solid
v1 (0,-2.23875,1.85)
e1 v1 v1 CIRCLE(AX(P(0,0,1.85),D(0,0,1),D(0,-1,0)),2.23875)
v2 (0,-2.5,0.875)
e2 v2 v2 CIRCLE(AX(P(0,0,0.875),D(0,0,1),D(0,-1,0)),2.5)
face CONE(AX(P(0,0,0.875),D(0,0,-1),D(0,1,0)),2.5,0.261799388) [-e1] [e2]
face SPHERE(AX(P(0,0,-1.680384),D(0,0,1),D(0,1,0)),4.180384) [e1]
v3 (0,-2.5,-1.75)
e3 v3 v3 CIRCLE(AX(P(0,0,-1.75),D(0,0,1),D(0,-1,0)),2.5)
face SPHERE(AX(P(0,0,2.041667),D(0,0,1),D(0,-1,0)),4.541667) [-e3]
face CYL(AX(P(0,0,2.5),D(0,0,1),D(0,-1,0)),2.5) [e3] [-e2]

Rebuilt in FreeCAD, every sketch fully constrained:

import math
import FreeCAD as App
import Part
import Sketcher
from FreeCAD import Vector
Q = App.Units.Quantity

doc = App.newDocument("Part")
params = doc.addObject("Spreadsheet::Sheet", "Params")
for row, (alias, value) in enumerate([
    ("sketch1_height", "5 mm"),
    ("revolution_angle", "360 deg"),
], start=1):
    params.set(f"A{row}", alias)
    params.set(f"B{row}", "=" + value)
    params.setAlias(f"B{row}", alias)

body = doc.addObject("PartDesign::Body", "Body")

# Sketch on YZ plane
sketch1 = body.newObject("Sketcher::SketchObject", "Sketch")
sketch1.AttachmentSupport = (doc.getObject("YZ_Plane"), [""])
sketch1.MapMode = "FlatFace"
sketch1.addGeometry(Part.LineSegment(Vector(0, 2.5, 0), Vector(0, -2.5, 0)), False)
sketch1.addGeometry(Part.ArcOfCircle(Part.Circle(Vector(0, 2, 0), Vector(0, 0, 1), 4.5), math.radians(-90), math.radians(-57)), False)
sketch1.addGeometry(Part.LineSegment(Vector(2.5, -1.8, 0), Vector(2.5, 0.9, 0)), False)
sketch1.addGeometry(Part.LineSegment(Vector(2.5, 0.9, 0), Vector(2.2, 1.9, 0)), False)
sketch1.addGeometry(Part.ArcOfCircle(Part.Circle(Vector(0, -1.7, 0), Vector(0, 0, 1), 4.2), math.radians(58), math.radians(90)), False)
sketch1.addConstraint(Sketcher.Constraint("Coincident", 0, 2, 1, 1))
sketch1.addConstraint(Sketcher.Constraint("Coincident", 1, 2, 2, 1))
sketch1.addConstraint(Sketcher.Constraint("Coincident", 2, 2, 3, 1))
sketch1.addConstraint(Sketcher.Constraint("Coincident", 3, 2, 4, 1))
sketch1.addConstraint(Sketcher.Constraint("Coincident", 4, 2, 0, 1))
sketch1.addConstraint(Sketcher.Constraint("Vertical", 0))
sketch1.addConstraint(Sketcher.Constraint("Vertical", 2))
sketch1.addConstraint(Sketcher.Constraint("Symmetric", 0, 2, 4, 2, -1, 1))
sketch1.addConstraint(Sketcher.Constraint("PointOnObject", 1, 3, -2))
sketch1.addConstraint(Sketcher.Constraint("PointOnObject", 4, 3, -2))
sketch1.addConstraint(Sketcher.Constraint("DistanceY", 0, 2, 0, 1, 5.0))
sketch1.addConstraint(Sketcher.Constraint("Angle", 3, Q("105 deg")))
sketch1.addConstraint(Sketcher.Constraint("DistanceX", -1, 1, 1, 2, 2.5))
sketch1.addConstraint(Sketcher.Constraint("DistanceY", 1, 2, 3, 2, 3.6))
sketch1.addConstraint(Sketcher.Constraint("DistanceY", 2, 1, 2, 2, 2.625))
sketch1.addConstraint(Sketcher.Constraint("DistanceY", 1, 2, -1, 1, 1.75))
sketch1.setExpression("Constraints[10]", "Params.sketch1_height")
revolution = body.newObject("PartDesign::Revolution", "Revolution")
revolution.Profile = sketch1
revolution.ReferenceAxis = (sketch1, ["V_Axis"])
revolution.setExpression("Angle", "Params.revolution_angle")

doc.recompute()
